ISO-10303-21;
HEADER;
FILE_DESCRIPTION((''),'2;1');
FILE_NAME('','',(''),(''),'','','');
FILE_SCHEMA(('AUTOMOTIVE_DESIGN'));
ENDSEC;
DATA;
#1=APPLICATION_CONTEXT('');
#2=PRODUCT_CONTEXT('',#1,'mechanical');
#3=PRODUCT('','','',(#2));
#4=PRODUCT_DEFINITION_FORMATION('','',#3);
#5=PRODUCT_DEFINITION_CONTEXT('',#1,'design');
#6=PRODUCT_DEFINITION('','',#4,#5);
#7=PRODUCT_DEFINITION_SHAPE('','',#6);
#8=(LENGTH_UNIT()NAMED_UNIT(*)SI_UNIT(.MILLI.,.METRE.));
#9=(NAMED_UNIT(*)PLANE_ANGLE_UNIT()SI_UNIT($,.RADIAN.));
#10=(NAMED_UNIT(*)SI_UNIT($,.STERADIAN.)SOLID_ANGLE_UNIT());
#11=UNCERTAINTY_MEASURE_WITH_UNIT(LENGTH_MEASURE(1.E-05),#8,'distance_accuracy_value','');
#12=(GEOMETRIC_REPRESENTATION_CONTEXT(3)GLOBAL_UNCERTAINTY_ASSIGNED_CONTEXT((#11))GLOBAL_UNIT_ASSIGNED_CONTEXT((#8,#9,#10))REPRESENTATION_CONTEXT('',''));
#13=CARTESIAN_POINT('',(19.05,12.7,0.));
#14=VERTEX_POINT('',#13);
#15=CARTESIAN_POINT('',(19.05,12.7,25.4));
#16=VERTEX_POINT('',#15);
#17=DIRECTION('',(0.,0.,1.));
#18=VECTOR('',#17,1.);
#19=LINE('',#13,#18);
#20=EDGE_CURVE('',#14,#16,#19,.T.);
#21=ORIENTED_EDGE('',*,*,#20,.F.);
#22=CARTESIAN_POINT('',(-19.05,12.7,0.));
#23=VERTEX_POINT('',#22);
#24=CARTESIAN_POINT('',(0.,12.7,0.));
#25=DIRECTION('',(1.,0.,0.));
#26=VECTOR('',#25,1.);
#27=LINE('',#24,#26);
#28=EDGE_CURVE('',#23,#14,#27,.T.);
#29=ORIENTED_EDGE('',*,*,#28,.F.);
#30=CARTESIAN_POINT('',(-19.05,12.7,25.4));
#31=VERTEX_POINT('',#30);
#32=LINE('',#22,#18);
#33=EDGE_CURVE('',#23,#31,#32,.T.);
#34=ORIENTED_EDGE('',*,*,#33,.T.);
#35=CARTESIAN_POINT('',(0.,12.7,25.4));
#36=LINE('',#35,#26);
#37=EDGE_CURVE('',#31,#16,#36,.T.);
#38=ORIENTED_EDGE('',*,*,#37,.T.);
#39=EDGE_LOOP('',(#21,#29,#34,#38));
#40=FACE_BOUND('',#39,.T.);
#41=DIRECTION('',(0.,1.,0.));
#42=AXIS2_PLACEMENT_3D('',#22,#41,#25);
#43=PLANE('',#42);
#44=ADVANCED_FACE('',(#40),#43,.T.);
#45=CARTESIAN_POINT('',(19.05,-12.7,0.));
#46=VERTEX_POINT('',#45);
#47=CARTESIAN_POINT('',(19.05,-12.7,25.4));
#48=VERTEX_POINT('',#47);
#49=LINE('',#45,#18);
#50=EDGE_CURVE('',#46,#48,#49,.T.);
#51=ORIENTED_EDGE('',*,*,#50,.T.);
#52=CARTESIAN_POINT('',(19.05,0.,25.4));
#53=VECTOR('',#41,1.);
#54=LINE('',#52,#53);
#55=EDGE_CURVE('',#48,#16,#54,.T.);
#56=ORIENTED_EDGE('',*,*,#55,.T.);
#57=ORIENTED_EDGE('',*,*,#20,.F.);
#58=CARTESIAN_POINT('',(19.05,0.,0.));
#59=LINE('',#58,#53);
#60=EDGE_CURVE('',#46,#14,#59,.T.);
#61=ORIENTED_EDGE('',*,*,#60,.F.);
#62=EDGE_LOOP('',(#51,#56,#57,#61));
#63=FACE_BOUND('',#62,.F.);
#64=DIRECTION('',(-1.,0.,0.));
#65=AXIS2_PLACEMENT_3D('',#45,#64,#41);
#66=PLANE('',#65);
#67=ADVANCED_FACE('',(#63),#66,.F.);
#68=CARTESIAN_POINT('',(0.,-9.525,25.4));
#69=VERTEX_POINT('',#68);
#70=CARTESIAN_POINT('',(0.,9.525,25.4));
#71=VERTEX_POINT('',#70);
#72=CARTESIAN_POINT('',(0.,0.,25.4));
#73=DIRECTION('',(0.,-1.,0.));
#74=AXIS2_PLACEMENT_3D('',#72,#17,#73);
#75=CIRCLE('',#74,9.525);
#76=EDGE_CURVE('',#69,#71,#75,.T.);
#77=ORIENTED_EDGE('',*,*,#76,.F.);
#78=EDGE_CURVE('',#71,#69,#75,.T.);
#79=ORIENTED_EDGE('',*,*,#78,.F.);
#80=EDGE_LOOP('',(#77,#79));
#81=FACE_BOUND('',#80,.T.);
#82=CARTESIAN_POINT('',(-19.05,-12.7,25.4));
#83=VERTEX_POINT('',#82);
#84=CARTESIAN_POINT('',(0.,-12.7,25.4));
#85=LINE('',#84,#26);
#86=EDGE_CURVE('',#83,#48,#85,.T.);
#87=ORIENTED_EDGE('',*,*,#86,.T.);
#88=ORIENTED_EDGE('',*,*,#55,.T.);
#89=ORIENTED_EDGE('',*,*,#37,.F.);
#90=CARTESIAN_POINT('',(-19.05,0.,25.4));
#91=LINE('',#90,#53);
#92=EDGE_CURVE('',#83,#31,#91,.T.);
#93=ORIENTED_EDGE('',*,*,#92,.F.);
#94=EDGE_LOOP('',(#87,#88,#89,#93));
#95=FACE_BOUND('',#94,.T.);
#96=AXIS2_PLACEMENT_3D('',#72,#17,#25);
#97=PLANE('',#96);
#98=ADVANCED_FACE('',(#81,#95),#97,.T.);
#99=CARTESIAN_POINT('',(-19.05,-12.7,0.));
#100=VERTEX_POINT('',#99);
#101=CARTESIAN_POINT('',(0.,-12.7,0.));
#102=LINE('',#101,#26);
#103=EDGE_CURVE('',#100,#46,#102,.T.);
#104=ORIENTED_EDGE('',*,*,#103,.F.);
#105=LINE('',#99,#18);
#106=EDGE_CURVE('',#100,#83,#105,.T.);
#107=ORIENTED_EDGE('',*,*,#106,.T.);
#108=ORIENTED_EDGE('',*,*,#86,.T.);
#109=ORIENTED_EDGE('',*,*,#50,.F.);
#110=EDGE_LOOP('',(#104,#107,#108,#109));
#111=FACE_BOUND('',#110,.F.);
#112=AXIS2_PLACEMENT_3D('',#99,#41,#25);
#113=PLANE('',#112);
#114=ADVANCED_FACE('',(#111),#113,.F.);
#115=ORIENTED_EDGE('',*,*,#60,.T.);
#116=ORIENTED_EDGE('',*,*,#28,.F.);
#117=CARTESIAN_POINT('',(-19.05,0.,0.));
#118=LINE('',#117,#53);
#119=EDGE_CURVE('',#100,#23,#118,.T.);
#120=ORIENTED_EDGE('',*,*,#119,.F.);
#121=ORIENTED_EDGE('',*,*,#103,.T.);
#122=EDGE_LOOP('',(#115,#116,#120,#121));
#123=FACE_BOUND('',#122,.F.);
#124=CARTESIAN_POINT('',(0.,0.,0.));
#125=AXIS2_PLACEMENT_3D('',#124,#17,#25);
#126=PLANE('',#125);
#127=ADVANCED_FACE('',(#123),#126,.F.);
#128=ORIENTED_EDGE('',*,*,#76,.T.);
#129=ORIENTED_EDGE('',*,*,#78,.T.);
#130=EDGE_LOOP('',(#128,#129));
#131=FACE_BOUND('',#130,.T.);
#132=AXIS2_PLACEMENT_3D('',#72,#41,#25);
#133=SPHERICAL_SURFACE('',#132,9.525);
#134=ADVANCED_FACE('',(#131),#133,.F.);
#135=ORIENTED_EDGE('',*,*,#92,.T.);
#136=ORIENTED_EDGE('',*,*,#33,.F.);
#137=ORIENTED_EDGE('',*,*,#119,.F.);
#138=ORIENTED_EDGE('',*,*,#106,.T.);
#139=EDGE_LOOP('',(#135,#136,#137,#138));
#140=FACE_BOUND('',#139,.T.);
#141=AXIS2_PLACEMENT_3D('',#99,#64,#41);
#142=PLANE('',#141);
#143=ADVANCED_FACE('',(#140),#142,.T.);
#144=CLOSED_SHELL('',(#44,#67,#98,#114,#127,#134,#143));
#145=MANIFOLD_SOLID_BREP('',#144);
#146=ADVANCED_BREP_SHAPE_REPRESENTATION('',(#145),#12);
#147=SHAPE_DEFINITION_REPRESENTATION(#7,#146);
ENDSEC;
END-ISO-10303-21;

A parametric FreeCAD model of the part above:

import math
import FreeCAD as App
import Part
import Sketcher
from FreeCAD import Vector
Q = App.Units.Quantity


def add_polygon(sketch, points):
    """Adds a closed chain of lines whose ends are joined by coincident constraints."""
    first, n = sketch.GeometryCount, len(points)
    for a, b in zip(points, points[1:] + points[:1]):
        sketch.addGeometry(Part.LineSegment(App.Vector(*a, 0), App.Vector(*b, 0)), False)
    for i in range(n):
        sketch.addConstraint(Sketcher.Constraint("Coincident", first + i, 2, first + (i + 1) % n, 1))

doc = App.newDocument("Part")
body = doc.addObject("PartDesign::Body", "Body")

sketch1 = body.newObject("Sketcher::SketchObject", "Sketch")
sketch1.AttachmentSupport = (doc.getObject("XY_Plane"), [""])
sketch1.MapMode = "FlatFace"
add_polygon(sketch1, [(-19, 13), (-19, -13), (19, -13), (19, 13)])
sketch1.addConstraint([
    Sketcher.Constraint("Vertical", 0),
    Sketcher.Constraint("Horizontal", 1),
    Sketcher.Constraint("Vertical", 2),
    Sketcher.Constraint("Horizontal", 3),
    Sketcher.Constraint("Symmetric", 0, 2, 2, 2, -1, 1),
    Sketcher.Constraint("DistanceY", 0, 2, 0, 1, Q("1 in")),
    Sketcher.Constraint("DistanceX", 1, 1, 1, 2, Q("1.5 in")),
])
pad1 = body.newObject("PartDesign::Pad", "Pad")
pad1.Profile = sketch1
pad1.Length = Q("1 in")

sketch2 = body.newObject("Sketcher::SketchObject", "Sketch001")
sketch2.AttachmentSupport = (doc.getObject("XY_Plane"), [""])
sketch2.MapMode = "FlatFace"
sketch2.AttachmentOffset = App.Placement(Vector(0, 0, 1 * 25.4), App.Rotation())
sketch2.addGeometry([
    Part.ArcOfCircle(Part.Circle(Vector(0, 0, 0), Vector(0, 0, 1), 10), math.radians(-90), math.radians(90)),
    Part.LineSegment(Vector(0, 10, 0), Vector(0, -10, 0)),
], False)
sketch2.addConstraint([
    Sketcher.Constraint("Coincident", 0, 1, 1, 2),
    Sketcher.Constraint("Coincident", 1, 1, 0, 2),
    Sketcher.Constraint("Vertical", 1),
    Sketcher.Constraint("Coincident", 0, 3, -1, 1),
    Sketcher.Constraint("PointOnObject", 0, 1, -2),
    Sketcher.Constraint("Radius", 0, Q("0.375 in")),
])
groove = body.newObject("PartDesign::Groove", "Groove")
groove.Profile = sketch2
groove.ReferenceAxis = (sketch2, ["V_Axis"])
groove.Angle = 360

doc.recompute()
